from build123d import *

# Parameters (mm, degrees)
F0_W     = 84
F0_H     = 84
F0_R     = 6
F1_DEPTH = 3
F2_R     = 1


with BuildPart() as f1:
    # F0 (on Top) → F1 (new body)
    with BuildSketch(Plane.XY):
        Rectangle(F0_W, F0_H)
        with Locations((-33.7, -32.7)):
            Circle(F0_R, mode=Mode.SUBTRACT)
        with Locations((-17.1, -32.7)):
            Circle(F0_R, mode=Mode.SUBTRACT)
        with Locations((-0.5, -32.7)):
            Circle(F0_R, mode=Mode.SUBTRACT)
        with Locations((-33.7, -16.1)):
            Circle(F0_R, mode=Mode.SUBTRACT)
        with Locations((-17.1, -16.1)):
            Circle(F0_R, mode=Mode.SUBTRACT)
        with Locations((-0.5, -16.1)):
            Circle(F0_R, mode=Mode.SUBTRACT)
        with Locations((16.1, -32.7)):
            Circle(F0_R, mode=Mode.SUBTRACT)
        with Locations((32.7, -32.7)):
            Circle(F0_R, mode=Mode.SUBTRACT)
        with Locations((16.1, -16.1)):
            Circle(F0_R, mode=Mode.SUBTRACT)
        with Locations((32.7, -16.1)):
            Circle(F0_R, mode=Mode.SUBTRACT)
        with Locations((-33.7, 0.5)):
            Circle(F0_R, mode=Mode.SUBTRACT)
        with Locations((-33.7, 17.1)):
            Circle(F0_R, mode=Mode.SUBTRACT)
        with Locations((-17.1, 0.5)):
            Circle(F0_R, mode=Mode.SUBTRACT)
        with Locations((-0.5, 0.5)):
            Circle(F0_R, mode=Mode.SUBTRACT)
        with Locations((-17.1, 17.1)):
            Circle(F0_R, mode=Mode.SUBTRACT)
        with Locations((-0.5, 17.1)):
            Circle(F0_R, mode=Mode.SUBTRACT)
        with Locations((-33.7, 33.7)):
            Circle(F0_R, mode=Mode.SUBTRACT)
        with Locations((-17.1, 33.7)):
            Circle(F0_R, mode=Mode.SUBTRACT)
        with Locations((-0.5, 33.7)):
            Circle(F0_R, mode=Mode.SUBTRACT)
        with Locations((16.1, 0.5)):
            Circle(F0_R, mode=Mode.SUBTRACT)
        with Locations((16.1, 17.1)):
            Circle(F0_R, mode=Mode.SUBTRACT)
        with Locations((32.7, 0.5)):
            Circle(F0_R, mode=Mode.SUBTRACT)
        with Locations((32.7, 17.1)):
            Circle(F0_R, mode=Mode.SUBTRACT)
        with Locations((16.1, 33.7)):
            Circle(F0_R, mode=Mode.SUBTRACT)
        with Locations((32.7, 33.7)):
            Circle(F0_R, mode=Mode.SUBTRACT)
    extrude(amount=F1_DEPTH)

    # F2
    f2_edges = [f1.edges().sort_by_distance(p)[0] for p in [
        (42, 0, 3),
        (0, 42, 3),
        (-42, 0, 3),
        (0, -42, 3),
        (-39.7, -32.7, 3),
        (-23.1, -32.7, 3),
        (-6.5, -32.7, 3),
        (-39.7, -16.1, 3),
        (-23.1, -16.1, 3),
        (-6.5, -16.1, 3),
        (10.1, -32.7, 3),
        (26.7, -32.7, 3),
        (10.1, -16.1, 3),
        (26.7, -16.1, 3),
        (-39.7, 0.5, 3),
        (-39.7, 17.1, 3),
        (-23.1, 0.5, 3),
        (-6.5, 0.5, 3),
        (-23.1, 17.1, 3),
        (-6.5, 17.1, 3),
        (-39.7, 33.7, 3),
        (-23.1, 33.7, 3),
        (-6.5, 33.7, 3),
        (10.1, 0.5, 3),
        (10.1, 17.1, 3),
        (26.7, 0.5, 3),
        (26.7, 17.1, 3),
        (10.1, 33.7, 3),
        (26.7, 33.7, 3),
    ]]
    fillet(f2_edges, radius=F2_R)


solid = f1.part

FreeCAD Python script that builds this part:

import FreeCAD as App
import Part
import Sketcher
Q = App.Units.Quantity


def edges_at(feature, points):
    """Names of the edges that pass closest to the given points."""
    edges = feature.Shape.Edges
    near = lambda p: min(range(len(edges)), key=lambda i: edges[i].distToShape(Part.Vertex(*p))[0])
    return sorted({f"Edge{near(p) + 1}" for p in points})

doc = App.newDocument("Part")
params = doc.addObject("Spreadsheet::Sheet", "Params")
for row, (alias, value) in enumerate([
    ("sketch1_diameter", "12 mm"),
    ("sketch1_width", "84 mm"),
    ("pad1_length", "3 mm"),
    ("fillet_radius", "1 mm"),
], start=1):
    params.set(f"A{row}", alias)
    params.set(f"B{row}", "=" + value)
    params.setAlias(f"B{row}", alias)

body = doc.addObject("PartDesign::Body", "Body")

# Sketch on XY plane
sketch1 = body.newObject("Sketcher::SketchObject", "Sketch")
sketch1.AttachmentSupport = (doc.getObject("XY_Plane"), [""])
sketch1.MapMode = "FlatFace"
sketch1.addGeometry([
    Part.LineSegment(App.Vector(-42, 42, 0), App.Vector(-42, -42, 0)),  # 0
    Part.LineSegment(App.Vector(-42, -42, 0), App.Vector(42, -42, 0)),  # 1
    Part.LineSegment(App.Vector(42, -42, 0), App.Vector(42, 42, 0)),  # 2
    Part.LineSegment(App.Vector(42, 42, 0), App.Vector(-42, 42, 0)),  # 3
    Part.Circle(App.Vector(-33.7, -32.7, 0), App.Vector(0, 0, 1), 6),  # 4
    Part.Circle(App.Vector(-17.1, -32.7, 0), App.Vector(0, 0, 1), 6),  # 5
    Part.Circle(App.Vector(-33.7, -16.1, 0), App.Vector(0, 0, 1), 6),  # 6
    Part.Circle(App.Vector(-17.1, -16.1, 0), App.Vector(0, 0, 1), 6),  # 7
    Part.Circle(App.Vector(-0.5, -32.7, 0), App.Vector(0, 0, 1), 6),  # 8
    Part.Circle(App.Vector(16.1, -32.7, 0), App.Vector(0, 0, 1), 6),  # 9
    Part.Circle(App.Vector(32.7, -32.7, 0), App.Vector(0, 0, 1), 6),  # 10
    Part.Circle(App.Vector(-0.5, -16.1, 0), App.Vector(0, 0, 1), 6),  # 11
    Part.Circle(App.Vector(16.1, -16.1, 0), App.Vector(0, 0, 1), 6),  # 12
    Part.Circle(App.Vector(32.7, -16.1, 0), App.Vector(0, 0, 1), 6),  # 13
    Part.Circle(App.Vector(-33.7, 0.5, 0), App.Vector(0, 0, 1), 6),  # 14
    Part.Circle(App.Vector(-33.7, 17.1, 0), App.Vector(0, 0, 1), 6),  # 15
    Part.Circle(App.Vector(-17.1, 0.5, 0), App.Vector(0, 0, 1), 6),  # 16
    Part.Circle(App.Vector(-17.1, 17.1, 0), App.Vector(0, 0, 1), 6),  # 17
    Part.Circle(App.Vector(-33.7, 33.7, 0), App.Vector(0, 0, 1), 6),  # 18
    Part.Circle(App.Vector(-17.1, 33.7, 0), App.Vector(0, 0, 1), 6),  # 19
    Part.Circle(App.Vector(-0.5, 0.5, 0), App.Vector(0, 0, 1), 6),  # 20
    Part.Circle(App.Vector(16.1, 0.5, 0), App.Vector(0, 0, 1), 6),  # 21
    Part.Circle(App.Vector(-0.5, 17.1, 0), App.Vector(0, 0, 1), 6),  # 22
    Part.Circle(App.Vector(16.1, 17.1, 0), App.Vector(0, 0, 1), 6),  # 23
    Part.Circle(App.Vector(32.7, 0.5, 0), App.Vector(0, 0, 1), 6),  # 24
    Part.Circle(App.Vector(32.7, 17.1, 0), App.Vector(0, 0, 1), 6),  # 25
    Part.Circle(App.Vector(-0.5, 33.7, 0), App.Vector(0, 0, 1), 6),  # 26
    Part.Circle(App.Vector(16.1, 33.7, 0), App.Vector(0, 0, 1), 6),  # 27
    Part.Circle(App.Vector(32.7, 33.7, 0), App.Vector(0, 0, 1), 6),  # 28
], False)
sketch1.addConstraint([
    Sketcher.Constraint("Coincident", 0, 2, 1, 1),
    Sketcher.Constraint("Coincident", 1, 2, 2, 1),
    Sketcher.Constraint("Coincident", 2, 2, 3, 1),
    Sketcher.Constraint("Coincident", 3, 2, 0, 1),
    Sketcher.Constraint("Vertical", 0),
    Sketcher.Constraint("Horizontal", 1),
    Sketcher.Constraint("Vertical", 2),
    Sketcher.Constraint("Horizontal", 3),
    Sketcher.Constraint("Equal", 4, 5),
    Sketcher.Constraint("Equal", 5, 6),
    Sketcher.Constraint("Equal", 6, 7),
    Sketcher.Constraint("Equal", 7, 8),
    Sketcher.Constraint("Equal", 8, 9),
    Sketcher.Constraint("Equal", 9, 10),
    Sketcher.Constraint("Equal", 10, 11),
    Sketcher.Constraint("Equal", 11, 12),
    Sketcher.Constraint("Equal", 12, 13),
    Sketcher.Constraint("Equal", 13, 14),
    Sketcher.Constraint("Equal", 14, 15),
    Sketcher.Constraint("Equal", 15, 16),
    Sketcher.Constraint("Equal", 16, 17),
    Sketcher.Constraint("Equal", 17, 18),
    Sketcher.Constraint("Equal", 18, 19),
    Sketcher.Constraint("Equal", 19, 20),
    Sketcher.Constraint("Equal", 20, 21),
    Sketcher.Constraint("Equal", 21, 22),
    Sketcher.Constraint("Equal", 22, 23),
    Sketcher.Constraint("Equal", 23, 24),
    Sketcher.Constraint("Equal", 24, 25),
    Sketcher.Constraint("Equal", 25, 26),
    Sketcher.Constraint("Equal", 26, 27),
    Sketcher.Constraint("Equal", 27, 28),
    Sketcher.Constraint("Symmetric", 0, 2, 2, 2, -1, 1),
    Sketcher.Constraint("Horizontal", 4, 3, 5, 3),
    Sketcher.Constraint("Horizontal", 6, 3, 7, 3),
    Sketcher.Constraint("Horizontal", 5, 3, 8, 3),
    Sketcher.Constraint("Horizontal", 8, 3, 9, 3),
    Sketcher.Constraint("Horizontal", 9, 3, 10, 3),
    Sketcher.Constraint("Horizontal", 7, 3, 11, 3),
    Sketcher.Constraint("Horizontal", 11, 3, 12, 3),
    Sketcher.Constraint("Horizontal", 12, 3, 13, 3),
    Sketcher.Constraint("Horizontal", 14, 3, 16, 3),
    Sketcher.Constraint("Horizontal", 15, 3, 17, 3),
    Sketcher.Constraint("Horizontal", 18, 3, 19, 3),
    Sketcher.Constraint("Horizontal", 16, 3, 20, 3),
    Sketcher.Constraint("Horizontal", 20, 3, 21, 3),
    Sketcher.Constraint("Horizontal", 17, 3, 22, 3),
    Sketcher.Constraint("Horizontal", 22, 3, 23, 3),
    Sketcher.Constraint("Horizontal", 21, 3, 24, 3),
    Sketcher.Constraint("Horizontal", 23, 3, 25, 3),
    Sketcher.Constraint("Horizontal", 19, 3, 26, 3),
    Sketcher.Constraint("Horizontal", 26, 3, 27, 3),
    Sketcher.Constraint("Horizontal", 27, 3, 28, 3),
    Sketcher.Constraint("Vertical", 4, 3, 6, 3),
    Sketcher.Constraint("Vertical", 5, 3, 7, 3),
    Sketcher.Constraint("Vertical", 8, 3, 11, 3),
    Sketcher.Constraint("Vertical", 9, 3, 12, 3),
    Sketcher.Constraint("Vertical", 10, 3, 13, 3),
    Sketcher.Constraint("Vertical", 6, 3, 14, 3),
    Sketcher.Constraint("Vertical", 14, 3, 15, 3),
    Sketcher.Constraint("Vertical", 7, 3, 16, 3),
    Sketcher.Constraint("Vertical", 16, 3, 17, 3),
    Sketcher.Constraint("Vertical", 15, 3, 18, 3),
    Sketcher.Constraint("Vertical", 17, 3, 19, 3),
    Sketcher.Constraint("Vertical", 11, 3, 20, 3),
    Sketcher.Constraint("Vertical", 12, 3, 21, 3),
    Sketcher.Constraint("Vertical", 20, 3, 22, 3),
    Sketcher.Constraint("Vertical", 21, 3, 23, 3),
    Sketcher.Constraint("Vertical", 13, 3, 24, 3),
    Sketcher.Constraint("Vertical", 24, 3, 25, 3),
    Sketcher.Constraint("Vertical", 22, 3, 26, 3),
    Sketcher.Constraint("Vertical", 23, 3, 27, 3),
    Sketcher.Constraint("Vertical", 25, 3, 28, 3),
    Sketcher.Constraint("Equal", 3, 0),
    Sketcher.Constraint("Diameter", 4, Q("12 mm")),
    Sketcher.Constraint("DistanceX", 1, 1, 1, 2, Q("84 mm")),
    Sketcher.Constraint("DistanceX", 4, 3, -1, 1, Q("33.7 mm")),
    Sketcher.Constraint("DistanceY", 4, 3, -1, 1, Q("32.7 mm")),
    Sketcher.Constraint("DistanceX", 5, 3, -1, 1, Q("17.1 mm")),
    Sketcher.Constraint("DistanceY", 6, 3, -1, 1, Q("16.1 mm")),
    Sketcher.Constraint("DistanceX", 8, 3, -1, 1, Q("0.5 mm")),
    Sketcher.Constraint("DistanceX", -1, 1, 9, 3, Q("16.1 mm")),
    Sketcher.Constraint("DistanceX", -1, 1, 10, 3, Q("32.7 mm")),
    Sketcher.Constraint("DistanceY", -1, 1, 14, 3, Q("0.5 mm")),
    Sketcher.Constraint("DistanceY", -1, 1, 15, 3, Q("17.1 mm")),
    Sketcher.Constraint("DistanceY", -1, 1, 18, 3, Q("33.7 mm")),
])
sketch1.setExpression("Constraints[74]", "Params.sketch1_diameter")
sketch1.setExpression("Constraints[75]", "Params.sketch1_width")
pad1 = body.newObject("PartDesign::Pad", "Pad")
pad1.Profile = sketch1
pad1.setExpression("Length", "Params.pad1_length")
doc.recompute()

fillet = body.newObject("PartDesign::Fillet", "Fillet")
fillet.Base = (pad1, edges_at(pad1, [
    (42, 0, 3),
    (0, 42, 3),
    (-42, 0, 3),
    (0, -42, 3),
    (-39.7, -32.7, 3),
    (-23.1, -32.7, 3),
    (-6.5, -32.7, 3),
    (-39.7, -16.1, 3),
    (-23.1, -16.1, 3),
    (-6.5, -16.1, 3),
    (10.1, -32.7, 3),
    (26.7, -32.7, 3),
    (10.1, -16.1, 3),
    (26.7, -16.1, 3),
    (-39.7, 0.5, 3),
    (-39.7, 17.1, 3),
    (-23.1, 0.5, 3),
    (-6.5, 0.5, 3),
    (-23.1, 17.1, 3),
    (-6.5, 17.1, 3),
    (-39.7, 33.7, 3),
    (-23.1, 33.7, 3),
    (-6.5, 33.7, 3),
    (10.1, 0.5, 3),
    (10.1, 17.1, 3),
    (26.7, 0.5, 3),
    (26.7, 17.1, 3),
    (10.1, 33.7, 3),
    (26.7, 33.7, 3),
]))
fillet.setExpression("Radius", "Params.fillet_radius")

doc.recompute()
